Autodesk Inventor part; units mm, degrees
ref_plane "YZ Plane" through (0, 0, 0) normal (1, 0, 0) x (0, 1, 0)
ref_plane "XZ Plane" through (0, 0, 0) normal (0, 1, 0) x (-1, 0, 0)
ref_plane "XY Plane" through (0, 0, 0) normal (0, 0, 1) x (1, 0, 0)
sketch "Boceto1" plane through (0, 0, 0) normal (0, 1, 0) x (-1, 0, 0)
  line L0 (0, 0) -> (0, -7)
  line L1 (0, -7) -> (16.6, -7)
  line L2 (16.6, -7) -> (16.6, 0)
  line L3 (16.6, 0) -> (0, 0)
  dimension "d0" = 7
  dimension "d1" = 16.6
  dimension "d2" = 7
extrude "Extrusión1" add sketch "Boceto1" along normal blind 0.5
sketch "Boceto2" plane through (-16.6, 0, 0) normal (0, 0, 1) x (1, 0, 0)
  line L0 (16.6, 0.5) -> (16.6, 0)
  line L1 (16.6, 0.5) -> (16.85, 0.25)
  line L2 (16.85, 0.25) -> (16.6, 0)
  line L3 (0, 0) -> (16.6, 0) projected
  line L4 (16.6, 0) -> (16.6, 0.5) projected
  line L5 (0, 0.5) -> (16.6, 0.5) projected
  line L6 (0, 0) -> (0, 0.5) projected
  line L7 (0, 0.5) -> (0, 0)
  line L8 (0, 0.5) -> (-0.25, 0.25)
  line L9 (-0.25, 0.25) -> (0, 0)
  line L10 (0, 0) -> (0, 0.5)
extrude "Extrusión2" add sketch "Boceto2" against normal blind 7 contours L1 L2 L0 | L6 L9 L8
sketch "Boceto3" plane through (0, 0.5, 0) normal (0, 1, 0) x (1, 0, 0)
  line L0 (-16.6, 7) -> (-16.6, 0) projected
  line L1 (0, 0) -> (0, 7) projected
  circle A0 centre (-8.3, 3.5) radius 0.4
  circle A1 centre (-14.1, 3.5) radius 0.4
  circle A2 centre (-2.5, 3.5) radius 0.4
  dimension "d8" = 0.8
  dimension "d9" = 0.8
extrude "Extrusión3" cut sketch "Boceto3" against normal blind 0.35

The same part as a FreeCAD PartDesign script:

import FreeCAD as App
import Part
import Sketcher
Q = App.Units.Quantity


def add_polygon(sketch, points):
    """Adds a closed chain of lines whose ends are joined by coincident constraints."""
    first, n = sketch.GeometryCount, len(points)
    for a, b in zip(points, points[1:] + points[:1]):
        sketch.addGeometry(Part.LineSegment(App.Vector(*a, 0), App.Vector(*b, 0)), False)
    for i in range(n):
        sketch.addConstraint(Sketcher.Constraint("Coincident", first + i, 2, first + (i + 1) % n, 1))

doc = App.newDocument("Part")
body = doc.addObject("PartDesign::Body", "Body")

# Sketch on XZ plane
sketch1 = body.newObject("Sketcher::SketchObject", "Sketch")
sketch1.AttachmentSupport = (doc.getObject("XZ_Plane"), [""])
sketch1.MapMode = "FlatFace"
add_polygon(sketch1, [(-17, 0), (0, 0), (0, -7), (-17, -7)])  # lines 0-3
sketch1.addConstraint([
    Sketcher.Constraint("Horizontal", 0),
    Sketcher.Constraint("Vertical", 1),
    Sketcher.Constraint("Horizontal", 2),
    Sketcher.Constraint("Vertical", 3),
    Sketcher.Constraint("Coincident", 0, 2, -1, 1),
    Sketcher.Constraint("DistanceY", 1, 2, 1, 1, Q("7 mm")),
    Sketcher.Constraint("DistanceX", 0, 1, 0, 2, Q("16.6 mm")),
])
pad1 = body.newObject("PartDesign::Pad", "Pad")
pad1.Profile = sketch1
pad1.Length = 0.5
pad1.Reversed = True

# Sketch on XY plane
sketch2 = body.newObject("Sketcher::SketchObject", "Sketch001")
sketch2.AttachmentSupport = (doc.getObject("XY_Plane"), [""])
sketch2.MapMode = "FlatFace"
add_polygon(sketch2, [(0.25, 0.25), (0, 0.5), (0, 0)])  # lines 0-2
add_polygon(sketch2, [(-16.6, 0), (-16.6, 0.5), (-16.85, 0.25)])  # lines 3-5
sketch2.addConstraint([
    Sketcher.Constraint("Vertical", 1),
    Sketcher.Constraint("Vertical", 3),
    Sketcher.Constraint("Coincident", 1, 2, -1, 1),
    Sketcher.Constraint("PointOnObject", 5, 2, -1),
    Sketcher.Constraint("Perpendicular", 0, 2),
    Sketcher.Constraint("Parallel", 2, 4),
    Sketcher.Constraint("Perpendicular", 4, 5),
    Sketcher.Constraint("Horizontal", 0, 2, 3, 2),
    Sketcher.Constraint("Horizontal", 2, 2, 4, 2),
    Sketcher.Constraint("DistanceY", 1, 2, 1, 1, Q("0.5 mm")),
    Sketcher.Constraint("DistanceX", 3, 2, -1, 1, Q("16.6 mm")),
])
pad2 = body.newObject("PartDesign::Pad", "Pad001")
pad2.Profile = sketch2
pad2.Length = 7
pad2.Reversed = True

# Sketch on XZ plane
sketch3 = body.newObject("Sketcher::SketchObject", "Sketch002")
sketch3.AttachmentSupport = (doc.getObject("XZ_Plane"), [""])
sketch3.MapMode = "FlatFace"
sketch3.AttachmentOffset = App.Placement(App.Vector(0, 0, -0.5), App.Rotation())
sketch3.addGeometry([
    Part.Circle(App.Vector(-8.3, -3.5, 0), App.Vector(0, 0, 1), 0.4),
    Part.Circle(App.Vector(-14.1, -3.5, 0), App.Vector(0, 0, 1), 0.4),
    Part.Circle(App.Vector(-2.5, -3.5, 0), App.Vector(0, 0, 1), 0.4),
], False)
sketch3.addConstraint([
    Sketcher.Constraint("Equal", 0, 1),
    Sketcher.Constraint("Equal", 1, 2),
    Sketcher.Constraint("Horizontal", 0, 3, 1, 3),
    Sketcher.Constraint("Horizontal", 1, 3, 2, 3),
    Sketcher.Constraint("Diameter", 0, Q("0.8 mm")),
    Sketcher.Constraint("DistanceX", 0, 3, -1, 1, Q("8.3 mm")),
    Sketcher.Constraint("DistanceY", 0, 3, -1, 1, Q("3.5 mm")),
    Sketcher.Constraint("DistanceX", 1, 3, -1, 1, Q("14.1 mm")),
    Sketcher.Constraint("DistanceX", 2, 3, -1, 1, Q("2.5 mm")),
])
pocket1 = body.newObject("PartDesign::Pocket", "Pocket")
pocket1.Profile = sketch3
pocket1.Length = 0.35
pocket1.Reversed = True

doc.recompute()
